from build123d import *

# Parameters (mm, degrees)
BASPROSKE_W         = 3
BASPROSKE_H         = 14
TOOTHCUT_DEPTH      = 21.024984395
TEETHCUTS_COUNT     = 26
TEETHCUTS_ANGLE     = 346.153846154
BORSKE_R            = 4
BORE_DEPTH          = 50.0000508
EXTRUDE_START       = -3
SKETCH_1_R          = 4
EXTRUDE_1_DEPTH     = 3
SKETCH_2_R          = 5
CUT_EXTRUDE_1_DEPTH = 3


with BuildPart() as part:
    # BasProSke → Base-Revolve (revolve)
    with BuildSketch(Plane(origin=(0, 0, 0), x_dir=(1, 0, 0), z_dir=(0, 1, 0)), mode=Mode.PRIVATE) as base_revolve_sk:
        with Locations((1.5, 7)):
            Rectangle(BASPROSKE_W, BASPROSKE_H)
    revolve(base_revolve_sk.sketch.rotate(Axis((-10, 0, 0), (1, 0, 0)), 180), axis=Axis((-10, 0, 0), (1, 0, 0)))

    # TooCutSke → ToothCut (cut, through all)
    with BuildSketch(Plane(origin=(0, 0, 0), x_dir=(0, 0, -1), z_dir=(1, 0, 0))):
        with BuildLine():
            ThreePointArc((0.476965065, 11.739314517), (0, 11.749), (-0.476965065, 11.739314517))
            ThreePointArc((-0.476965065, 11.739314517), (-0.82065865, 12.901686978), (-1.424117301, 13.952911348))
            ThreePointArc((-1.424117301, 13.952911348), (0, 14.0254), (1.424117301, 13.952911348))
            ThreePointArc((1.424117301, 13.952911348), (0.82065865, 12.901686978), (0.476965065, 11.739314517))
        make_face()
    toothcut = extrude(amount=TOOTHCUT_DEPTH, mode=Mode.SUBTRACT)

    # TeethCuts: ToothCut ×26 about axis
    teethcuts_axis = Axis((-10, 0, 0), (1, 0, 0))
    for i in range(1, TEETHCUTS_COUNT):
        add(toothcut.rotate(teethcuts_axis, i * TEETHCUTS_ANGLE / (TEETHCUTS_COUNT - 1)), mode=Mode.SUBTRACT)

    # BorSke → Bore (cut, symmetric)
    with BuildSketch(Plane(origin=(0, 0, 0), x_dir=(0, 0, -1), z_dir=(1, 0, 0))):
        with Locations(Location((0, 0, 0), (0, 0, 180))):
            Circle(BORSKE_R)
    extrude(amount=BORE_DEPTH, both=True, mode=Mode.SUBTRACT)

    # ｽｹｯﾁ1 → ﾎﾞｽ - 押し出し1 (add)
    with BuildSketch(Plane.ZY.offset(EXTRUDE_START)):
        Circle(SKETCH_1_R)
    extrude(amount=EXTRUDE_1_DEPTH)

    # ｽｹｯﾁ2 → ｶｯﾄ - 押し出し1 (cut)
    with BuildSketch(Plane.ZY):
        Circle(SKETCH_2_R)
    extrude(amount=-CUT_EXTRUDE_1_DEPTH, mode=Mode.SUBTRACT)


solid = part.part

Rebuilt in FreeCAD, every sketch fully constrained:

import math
import FreeCAD as App
import Part
import Sketcher
Q = App.Units.Quantity

doc = App.newDocument("Part")
body = doc.addObject("PartDesign::Body", "Body")

# Sketch on XZ plane
sketch1 = doc.addObject("Sketcher::SketchObject", "Sketch")
body.addObject(sketch1)
sketch1.AttachmentSupport = (doc.XZ_Plane, [""])
sketch1.MapMode = "FlatFace"
sketch1.addGeometry(Part.LineSegment(App.Vector(0, -14, 0), App.Vector(0, 0, 0)), False)
sketch1.addGeometry(Part.LineSegment(App.Vector(0, 0, 0), App.Vector(3, 0, 0)), False)
sketch1.addGeometry(Part.LineSegment(App.Vector(3, 0, 0), App.Vector(3, -14, 0)), False)
sketch1.addGeometry(Part.LineSegment(App.Vector(3, -14, 0), App.Vector(0, -14, 0)), False)
sketch1.addConstraint(Sketcher.Constraint("Coincident", 0, 2, 1, 1))
sketch1.addConstraint(Sketcher.Constraint("Coincident", 1, 2, 2, 1))
sketch1.addConstraint(Sketcher.Constraint("Coincident", 2, 2, 3, 1))
sketch1.addConstraint(Sketcher.Constraint("Coincident", 3, 2, 0, 1))
sketch1.addConstraint(Sketcher.Constraint("Vertical", 0))
sketch1.addConstraint(Sketcher.Constraint("Horizontal", 1))
sketch1.addConstraint(Sketcher.Constraint("Vertical", 2))
sketch1.addConstraint(Sketcher.Constraint("Horizontal", 3))
sketch1.addConstraint(Sketcher.Constraint("Coincident", 0, 2, -1, 1))
sketch1.addConstraint(Sketcher.Constraint("DistanceX", 1, 1, 1, 2, Q("3 mm")))
sketch1.addConstraint(Sketcher.Constraint("DistanceY", 0, 1, 0, 2, Q("14 mm")))
revolution = doc.addObject("PartDesign::Revolution", "Revolution")
body.addObject(revolution)
revolution.Profile = sketch1
revolution.ReferenceAxis = (sketch1, ["H_Axis"])
revolution.Angle = 360

# Sketch on YZ plane
sketch2 = doc.addObject("Sketcher::SketchObject", "Sketch001")
body.addObject(sketch2)
sketch2.AttachmentSupport = (doc.YZ_Plane, [""])
sketch2.MapMode = "FlatFace"
sketch2.addGeometry(Part.ArcOfCircle(Part.Circle(App.Vector(0, 0, 0), App.Vector(0, 0, 1), 11.749), math.radians(-2.326632), math.radians(2.326632)), False)
sketch2.addGeometry(Part.ArcOfCircle(Part.Circle(App.Vector(10.856102, -5.60141, 0), App.Vector(0, 0, 1), 5.2), math.radians(53.448851), math.radians(80.220991)), False)
sketch2.addGeometry(Part.ArcOfCircle(Part.Circle(App.Vector(0, 0, 0), App.Vector(0, 0, 1), 14.0254), math.radians(-5.827768), math.radians(5.827768)), False)
sketch2.addGeometry(Part.ArcOfCircle(Part.Circle(App.Vector(10.856102, 5.60141, 0), App.Vector(0, 0, 1), 5.2), math.radians(-80.220991), math.radians(-53.448851)), False)
sketch2.addConstraint(Sketcher.Constraint("Coincident", 0, 1, 1, 2))
sketch2.addConstraint(Sketcher.Constraint("Coincident", 1, 1, 2, 1))
sketch2.addConstraint(Sketcher.Constraint("Coincident", 2, 2, 3, 2))
sketch2.addConstraint(Sketcher.Constraint("Coincident", 3, 1, 0, 2))
sketch2.addConstraint(Sketcher.Constraint("Coincident", 0, 3, -1, 1))
sketch2.addConstraint(Sketcher.Constraint("Coincident", 2, 3, -1, 1))
sketch2.addConstraint(Sketcher.Constraint("Equal", 1, 3))
sketch2.addConstraint(Sketcher.Constraint("Symmetric", 1, 3, 3, 3, -1))
sketch2.addConstraint(Sketcher.Constraint("Radius", 1, Q("5.2 mm")))
sketch2.addConstraint(Sketcher.Constraint("Radius", 0, Q("11.749 mm")))
sketch2.addConstraint(Sketcher.Constraint("Radius", 2, Q("14.0254 mm")))
sketch2.addConstraint(Sketcher.Constraint("DistanceY", 1, 3, -1, 1, Q("5.60141 mm")))
sketch2.addConstraint(Sketcher.Constraint("DistanceX", -1, 1, 1, 1, Q("13.952911 mm")))
pocket1 = doc.addObject("PartDesign::Pocket", "Pocket")
body.addObject(pocket1)
pocket1.Profile = sketch2
pocket1.Type = "ThroughAll"
pocket1.Reversed = True
doc.recompute()

polarpattern = doc.addObject("PartDesign::PolarPattern", "PolarPattern")
body.addObject(polarpattern)
polarpattern.Originals = [pocket1]
polarpattern.Axis = (doc.X_Axis, [""])
polarpattern.Angle = 360
polarpattern.Occurrences = 26
body.Tip = polarpattern

# Sketch on YZ plane
sketch3 = doc.addObject("Sketcher::SketchObject", "Sketch002")
body.addObject(sketch3)
sketch3.AttachmentSupport = (doc.YZ_Plane, [""])
sketch3.MapMode = "FlatFace"
sketch3.addGeometry(Part.Circle(App.Vector(0, 0, 0), App.Vector(0, 0, 1), 4), False)
sketch3.addConstraint(Sketcher.Constraint("Coincident", 0, 3, -1, 1))
sketch3.addConstraint(Sketcher.Constraint("Diameter", 0, Q("8 mm")))
pocket2 = doc.addObject("PartDesign::Pocket", "Pocket001")
body.addObject(pocket2)
pocket2.Profile = sketch3
pocket2.Length = 100.000102
pocket2.Midplane = True

# Sketch on YZ plane
sketch4 = doc.addObject("Sketcher::SketchObject", "Sketch003")
body.addObject(sketch4)
sketch4.AttachmentSupport = (doc.YZ_Plane, [""])
sketch4.MapMode = "FlatFace"
sketch4.AttachmentOffset = App.Placement(App.Vector(0, 0, 3), App.Rotation())
sketch4.addGeometry(Part.Circle(App.Vector(0, 0, 0), App.Vector(0, 0, 1), 4), False)
sketch4.addConstraint(Sketcher.Constraint("Coincident", 0, 3, -1, 1))
sketch4.addConstraint(Sketcher.Constraint("Diameter", 0, Q("8 mm")))
pad1 = doc.addObject("PartDesign::Pad", "Pad")
body.addObject(pad1)
pad1.Profile = sketch4
pad1.Length = 3
pad1.Reversed = True

# Sketch on YZ plane
sketch5 = doc.addObject("Sketcher::SketchObject", "Sketch004")
body.addObject(sketch5)
sketch5.AttachmentSupport = (doc.YZ_Plane, [""])
sketch5.MapMode = "FlatFace"
sketch5.addGeometry(Part.Circle(App.Vector(0, 0, 0), App.Vector(0, 0, 1), 5), False)
sketch5.addConstraint(Sketcher.Constraint("Coincident", 0, 3, -1, 1))
sketch5.addConstraint(Sketcher.Constraint("Diameter", 0, Q("10 mm")))
pocket3 = doc.addObject("PartDesign::Pocket", "Pocket002")
body.addObject(pocket3)
pocket3.Profile = sketch5
pocket3.Length = 3
pocket3.Reversed = True

doc.recompute()
